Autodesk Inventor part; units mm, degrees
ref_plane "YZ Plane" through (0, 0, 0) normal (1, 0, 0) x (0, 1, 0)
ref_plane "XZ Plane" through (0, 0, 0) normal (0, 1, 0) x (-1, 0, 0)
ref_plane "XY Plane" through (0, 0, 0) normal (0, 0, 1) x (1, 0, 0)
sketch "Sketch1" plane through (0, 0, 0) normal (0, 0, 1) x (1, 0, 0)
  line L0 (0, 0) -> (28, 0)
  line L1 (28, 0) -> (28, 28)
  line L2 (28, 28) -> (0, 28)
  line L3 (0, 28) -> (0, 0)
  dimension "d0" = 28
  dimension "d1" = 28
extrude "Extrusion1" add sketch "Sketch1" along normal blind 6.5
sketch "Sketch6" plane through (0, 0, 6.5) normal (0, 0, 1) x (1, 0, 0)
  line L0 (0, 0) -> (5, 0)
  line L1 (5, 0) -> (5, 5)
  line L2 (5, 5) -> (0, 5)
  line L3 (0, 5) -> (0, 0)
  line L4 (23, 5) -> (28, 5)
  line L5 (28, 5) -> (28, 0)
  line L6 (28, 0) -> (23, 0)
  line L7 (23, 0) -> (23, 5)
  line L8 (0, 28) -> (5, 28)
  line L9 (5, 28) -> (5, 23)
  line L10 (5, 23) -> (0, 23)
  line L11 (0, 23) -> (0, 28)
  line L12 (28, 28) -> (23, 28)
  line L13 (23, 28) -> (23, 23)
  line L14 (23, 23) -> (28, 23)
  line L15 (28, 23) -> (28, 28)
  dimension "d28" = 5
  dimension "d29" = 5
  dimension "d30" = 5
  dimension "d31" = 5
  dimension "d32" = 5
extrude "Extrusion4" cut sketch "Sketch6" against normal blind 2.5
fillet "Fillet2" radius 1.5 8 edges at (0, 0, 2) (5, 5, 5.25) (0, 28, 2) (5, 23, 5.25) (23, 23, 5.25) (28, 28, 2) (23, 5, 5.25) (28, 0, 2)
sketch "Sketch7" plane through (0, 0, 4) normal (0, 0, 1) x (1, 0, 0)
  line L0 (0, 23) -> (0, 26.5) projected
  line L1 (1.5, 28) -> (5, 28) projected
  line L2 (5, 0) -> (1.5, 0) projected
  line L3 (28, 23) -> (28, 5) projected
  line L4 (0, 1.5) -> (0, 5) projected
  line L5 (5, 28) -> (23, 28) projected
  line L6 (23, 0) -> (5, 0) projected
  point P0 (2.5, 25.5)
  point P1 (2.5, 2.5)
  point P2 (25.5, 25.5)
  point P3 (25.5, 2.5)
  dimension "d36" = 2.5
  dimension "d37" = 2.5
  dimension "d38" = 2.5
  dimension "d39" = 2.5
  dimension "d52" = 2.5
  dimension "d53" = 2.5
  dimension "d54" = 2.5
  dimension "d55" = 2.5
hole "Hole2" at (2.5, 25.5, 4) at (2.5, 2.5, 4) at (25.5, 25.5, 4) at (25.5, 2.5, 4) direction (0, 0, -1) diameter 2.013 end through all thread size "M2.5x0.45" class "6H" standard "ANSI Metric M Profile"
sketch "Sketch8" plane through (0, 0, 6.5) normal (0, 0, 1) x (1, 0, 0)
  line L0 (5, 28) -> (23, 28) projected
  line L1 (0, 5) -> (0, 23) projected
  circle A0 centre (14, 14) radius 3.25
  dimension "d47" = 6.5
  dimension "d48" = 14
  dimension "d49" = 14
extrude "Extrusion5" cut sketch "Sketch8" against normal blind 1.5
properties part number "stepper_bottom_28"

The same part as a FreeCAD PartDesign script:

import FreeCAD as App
import Part
import Sketcher
from FreeCAD import Vector
Q = App.Units.Quantity


def edges_at(feature, points):
    """Names of the edges that pass closest to the given points."""
    edges = feature.Shape.Edges
    near = lambda p: min(range(len(edges)), key=lambda i: edges[i].distToShape(Part.Vertex(*p))[0])
    return sorted({f"Edge{near(p) + 1}" for p in points})


def add_polygon(sketch, points):
    """Adds a closed chain of lines whose ends are joined by coincident constraints."""
    first, n = sketch.GeometryCount, len(points)
    for a, b in zip(points, points[1:] + points[:1]):
        sketch.addGeometry(Part.LineSegment(App.Vector(*a, 0), App.Vector(*b, 0)), False)
    for i in range(n):
        sketch.addConstraint(Sketcher.Constraint("Coincident", first + i, 2, first + (i + 1) % n, 1))

doc = App.newDocument("Part")
body = doc.addObject("PartDesign::Body", "Body")

# Sketch on XY plane
sketch1 = doc.addObject("Sketcher::SketchObject", "Sketch")
body.addObject(sketch1)
sketch1.AttachmentSupport = (doc.XY_Plane, [""])
sketch1.MapMode = "FlatFace"
add_polygon(sketch1, [(0, 28), (0, 0), (28, 0), (28, 28)])  # lines 0-3
sketch1.addConstraint(Sketcher.Constraint("Vertical", 0))
sketch1.addConstraint(Sketcher.Constraint("Horizontal", 1))
sketch1.addConstraint(Sketcher.Constraint("Vertical", 2))
sketch1.addConstraint(Sketcher.Constraint("Horizontal", 3))
sketch1.addConstraint(Sketcher.Constraint("Coincident", 0, 2, -1, 1))
sketch1.addConstraint(Sketcher.Constraint("Equal", 3, 0))
sketch1.addConstraint(Sketcher.Constraint("DistanceX", 1, 1, 1, 2, Q("28 mm")))
pad1 = doc.addObject("PartDesign::Pad", "Pad")
body.addObject(pad1)
pad1.Profile = sketch1
pad1.Length = 6.5

# Sketch on XY plane
sketch2 = doc.addObject("Sketcher::SketchObject", "Sketch001")
body.addObject(sketch2)
sketch2.AttachmentSupport = (doc.XY_Plane, [""])
sketch2.MapMode = "FlatFace"
sketch2.AttachmentOffset = App.Placement(Vector(0, 0, 6.5), App.Rotation())
add_polygon(sketch2, [(0, 5), (0, 0), (5, 0), (5, 5)])  # lines 0-3
add_polygon(sketch2, [(28, 5), (23, 5), (23, 0), (28, 0)])  # lines 4-7
add_polygon(sketch2, [(5, 28), (0, 28), (0, 23), (5, 23)])  # lines 8-11
add_polygon(sketch2, [(28, 23), (28, 28), (23, 28), (23, 23)])  # lines 12-15
sketch2.addConstraint(Sketcher.Constraint("Vertical", 0))
sketch2.addConstraint(Sketcher.Constraint("Horizontal", 1))
sketch2.addConstraint(Sketcher.Constraint("Vertical", 2))
sketch2.addConstraint(Sketcher.Constraint("Horizontal", 3))
sketch2.addConstraint(Sketcher.Constraint("Horizontal", 4))
sketch2.addConstraint(Sketcher.Constraint("Vertical", 5))
sketch2.addConstraint(Sketcher.Constraint("Horizontal", 6))
sketch2.addConstraint(Sketcher.Constraint("Vertical", 7))
sketch2.addConstraint(Sketcher.Constraint("Horizontal", 8))
sketch2.addConstraint(Sketcher.Constraint("Vertical", 9))
sketch2.addConstraint(Sketcher.Constraint("Horizontal", 10))
sketch2.addConstraint(Sketcher.Constraint("Vertical", 11))
sketch2.addConstraint(Sketcher.Constraint("Vertical", 12))
sketch2.addConstraint(Sketcher.Constraint("Horizontal", 13))
sketch2.addConstraint(Sketcher.Constraint("Vertical", 14))
sketch2.addConstraint(Sketcher.Constraint("Horizontal", 15))
sketch2.addConstraint(Sketcher.Constraint("Coincident", 0, 2, -1, 1))
sketch2.addConstraint(Sketcher.Constraint("PointOnObject", 5, 2, -1))
sketch2.addConstraint(Sketcher.Constraint("PointOnObject", 8, 2, -2))
sketch2.addConstraint(Sketcher.Constraint("Horizontal", 3, 2, 4, 2))
sketch2.addConstraint(Sketcher.Constraint("Horizontal", 11, 2, 12, 2))
sketch2.addConstraint(Sketcher.Constraint("Horizontal", 10, 2, 14, 2))
sketch2.addConstraint(Sketcher.Constraint("Vertical", 2, 2, 10, 2))
sketch2.addConstraint(Sketcher.Constraint("Vertical", 7, 2, 12, 2))
sketch2.addConstraint(Sketcher.Constraint("Vertical", 5, 2, 13, 2))
sketch2.addConstraint(Sketcher.Constraint("Equal", 3, 4))
sketch2.addConstraint(Sketcher.Constraint("Equal", 15, 0))
sketch2.addConstraint(Sketcher.Constraint("Equal", 7, 9))
sketch2.addConstraint(Sketcher.Constraint("DistanceX", 1, 1, 1, 2, Q("5 mm")))
sketch2.addConstraint(Sketcher.Constraint("DistanceX", -1, 1, 4, 2, Q("23 mm")))
sketch2.addConstraint(Sketcher.Constraint("DistanceY", -1, 1, 8, 2, Q("28 mm")))
pocket1 = doc.addObject("PartDesign::Pocket", "Pocket")
body.addObject(pocket1)
pocket1.Profile = sketch2
pocket1.Length = 2.5
doc.recompute()

fillet = doc.addObject("PartDesign::Fillet", "Fillet")
body.addObject(fillet)
fillet.Base = (pocket1, edges_at(pocket1, [
    (0, 0, 2),
    (5, 5, 5.25),
    (0, 28, 2),
    (5, 23, 5.25),
    (23, 23, 5.25),
    (28, 28, 2),
    (23, 5, 5.25),
    (28, 0, 2),
]))
fillet.Radius = 1.5

# Sketch on XY plane
sketch3 = doc.addObject("Sketcher::SketchObject", "Sketch002")
body.addObject(sketch3)
sketch3.AttachmentSupport = (doc.XY_Plane, [""])
sketch3.MapMode = "FlatFace"
sketch3.AttachmentOffset = App.Placement(Vector(0, 0, 4), App.Rotation())
sketch3.addGeometry(Part.Circle(Vector(2.5, 25.5, 0), Vector(0, 0, 1), 1), False)
sketch3.addGeometry(Part.Circle(Vector(2.5, 2.5, 0), Vector(0, 0, 1), 1), False)
sketch3.addGeometry(Part.Circle(Vector(25.5, 25.5, 0), Vector(0, 0, 1), 1), False)
sketch3.addGeometry(Part.Circle(Vector(25.5, 2.5, 0), Vector(0, 0, 1), 1), False)
sketch3.addConstraint(Sketcher.Constraint("Equal", 0, 1))
sketch3.addConstraint(Sketcher.Constraint("Equal", 1, 2))
sketch3.addConstraint(Sketcher.Constraint("Equal", 2, 3))
sketch3.addConstraint(Sketcher.Constraint("Horizontal", 0, 3, 2, 3))
sketch3.addConstraint(Sketcher.Constraint("Horizontal", 1, 3, 3, 3))
sketch3.addConstraint(Sketcher.Constraint("Vertical", 0, 3, 1, 3))
sketch3.addConstraint(Sketcher.Constraint("Vertical", 2, 3, 3, 3))
sketch3.addConstraint(Sketcher.Constraint("Diameter", 0, Q("2.013 mm")))
sketch3.addConstraint(Sketcher.Constraint("DistanceY", 1, 3, 0, 3, Q("23 mm")))
sketch3.addConstraint(Sketcher.Constraint("DistanceX", 0, 3, 2, 3, Q("23 mm")))
sketch3.addConstraint(Sketcher.Constraint("DistanceX", -1, 1, 0, 3, Q("2.5 mm")))
sketch3.addConstraint(Sketcher.Constraint("DistanceY", -1, 1, 0, 3, Q("25.5 mm")))
doc.recompute()
hole = doc.addObject("PartDesign::Hole", "Hole")
body.addObject(hole)
hole.Profile = sketch3
hole.ThreadType = "None"
hole.Diameter = 2.013
hole.DepthType = "ThroughAll"

# Sketch on XY plane
sketch4 = doc.addObject("Sketcher::SketchObject", "Sketch003")
body.addObject(sketch4)
sketch4.AttachmentSupport = (doc.XY_Plane, [""])
sketch4.MapMode = "FlatFace"
sketch4.AttachmentOffset = App.Placement(Vector(0, 0, 6.5), App.Rotation())
sketch4.addGeometry(Part.Circle(Vector(14, 14, 0), Vector(0, 0, 1), 3.2), False)
sketch4.addConstraint(Sketcher.Constraint("Diameter", 0, Q("6.5 mm")))
sketch4.addConstraint(Sketcher.Constraint("DistanceX", -1, 1, 0, 3, Q("14 mm")))
sketch4.addConstraint(Sketcher.Constraint("DistanceY", -1, 1, 0, 3, Q("14 mm")))
pocket2 = doc.addObject("PartDesign::Pocket", "Pocket001")
body.addObject(pocket2)
pocket2.Profile = sketch4
pocket2.Length = 1.5

doc.recompute()
